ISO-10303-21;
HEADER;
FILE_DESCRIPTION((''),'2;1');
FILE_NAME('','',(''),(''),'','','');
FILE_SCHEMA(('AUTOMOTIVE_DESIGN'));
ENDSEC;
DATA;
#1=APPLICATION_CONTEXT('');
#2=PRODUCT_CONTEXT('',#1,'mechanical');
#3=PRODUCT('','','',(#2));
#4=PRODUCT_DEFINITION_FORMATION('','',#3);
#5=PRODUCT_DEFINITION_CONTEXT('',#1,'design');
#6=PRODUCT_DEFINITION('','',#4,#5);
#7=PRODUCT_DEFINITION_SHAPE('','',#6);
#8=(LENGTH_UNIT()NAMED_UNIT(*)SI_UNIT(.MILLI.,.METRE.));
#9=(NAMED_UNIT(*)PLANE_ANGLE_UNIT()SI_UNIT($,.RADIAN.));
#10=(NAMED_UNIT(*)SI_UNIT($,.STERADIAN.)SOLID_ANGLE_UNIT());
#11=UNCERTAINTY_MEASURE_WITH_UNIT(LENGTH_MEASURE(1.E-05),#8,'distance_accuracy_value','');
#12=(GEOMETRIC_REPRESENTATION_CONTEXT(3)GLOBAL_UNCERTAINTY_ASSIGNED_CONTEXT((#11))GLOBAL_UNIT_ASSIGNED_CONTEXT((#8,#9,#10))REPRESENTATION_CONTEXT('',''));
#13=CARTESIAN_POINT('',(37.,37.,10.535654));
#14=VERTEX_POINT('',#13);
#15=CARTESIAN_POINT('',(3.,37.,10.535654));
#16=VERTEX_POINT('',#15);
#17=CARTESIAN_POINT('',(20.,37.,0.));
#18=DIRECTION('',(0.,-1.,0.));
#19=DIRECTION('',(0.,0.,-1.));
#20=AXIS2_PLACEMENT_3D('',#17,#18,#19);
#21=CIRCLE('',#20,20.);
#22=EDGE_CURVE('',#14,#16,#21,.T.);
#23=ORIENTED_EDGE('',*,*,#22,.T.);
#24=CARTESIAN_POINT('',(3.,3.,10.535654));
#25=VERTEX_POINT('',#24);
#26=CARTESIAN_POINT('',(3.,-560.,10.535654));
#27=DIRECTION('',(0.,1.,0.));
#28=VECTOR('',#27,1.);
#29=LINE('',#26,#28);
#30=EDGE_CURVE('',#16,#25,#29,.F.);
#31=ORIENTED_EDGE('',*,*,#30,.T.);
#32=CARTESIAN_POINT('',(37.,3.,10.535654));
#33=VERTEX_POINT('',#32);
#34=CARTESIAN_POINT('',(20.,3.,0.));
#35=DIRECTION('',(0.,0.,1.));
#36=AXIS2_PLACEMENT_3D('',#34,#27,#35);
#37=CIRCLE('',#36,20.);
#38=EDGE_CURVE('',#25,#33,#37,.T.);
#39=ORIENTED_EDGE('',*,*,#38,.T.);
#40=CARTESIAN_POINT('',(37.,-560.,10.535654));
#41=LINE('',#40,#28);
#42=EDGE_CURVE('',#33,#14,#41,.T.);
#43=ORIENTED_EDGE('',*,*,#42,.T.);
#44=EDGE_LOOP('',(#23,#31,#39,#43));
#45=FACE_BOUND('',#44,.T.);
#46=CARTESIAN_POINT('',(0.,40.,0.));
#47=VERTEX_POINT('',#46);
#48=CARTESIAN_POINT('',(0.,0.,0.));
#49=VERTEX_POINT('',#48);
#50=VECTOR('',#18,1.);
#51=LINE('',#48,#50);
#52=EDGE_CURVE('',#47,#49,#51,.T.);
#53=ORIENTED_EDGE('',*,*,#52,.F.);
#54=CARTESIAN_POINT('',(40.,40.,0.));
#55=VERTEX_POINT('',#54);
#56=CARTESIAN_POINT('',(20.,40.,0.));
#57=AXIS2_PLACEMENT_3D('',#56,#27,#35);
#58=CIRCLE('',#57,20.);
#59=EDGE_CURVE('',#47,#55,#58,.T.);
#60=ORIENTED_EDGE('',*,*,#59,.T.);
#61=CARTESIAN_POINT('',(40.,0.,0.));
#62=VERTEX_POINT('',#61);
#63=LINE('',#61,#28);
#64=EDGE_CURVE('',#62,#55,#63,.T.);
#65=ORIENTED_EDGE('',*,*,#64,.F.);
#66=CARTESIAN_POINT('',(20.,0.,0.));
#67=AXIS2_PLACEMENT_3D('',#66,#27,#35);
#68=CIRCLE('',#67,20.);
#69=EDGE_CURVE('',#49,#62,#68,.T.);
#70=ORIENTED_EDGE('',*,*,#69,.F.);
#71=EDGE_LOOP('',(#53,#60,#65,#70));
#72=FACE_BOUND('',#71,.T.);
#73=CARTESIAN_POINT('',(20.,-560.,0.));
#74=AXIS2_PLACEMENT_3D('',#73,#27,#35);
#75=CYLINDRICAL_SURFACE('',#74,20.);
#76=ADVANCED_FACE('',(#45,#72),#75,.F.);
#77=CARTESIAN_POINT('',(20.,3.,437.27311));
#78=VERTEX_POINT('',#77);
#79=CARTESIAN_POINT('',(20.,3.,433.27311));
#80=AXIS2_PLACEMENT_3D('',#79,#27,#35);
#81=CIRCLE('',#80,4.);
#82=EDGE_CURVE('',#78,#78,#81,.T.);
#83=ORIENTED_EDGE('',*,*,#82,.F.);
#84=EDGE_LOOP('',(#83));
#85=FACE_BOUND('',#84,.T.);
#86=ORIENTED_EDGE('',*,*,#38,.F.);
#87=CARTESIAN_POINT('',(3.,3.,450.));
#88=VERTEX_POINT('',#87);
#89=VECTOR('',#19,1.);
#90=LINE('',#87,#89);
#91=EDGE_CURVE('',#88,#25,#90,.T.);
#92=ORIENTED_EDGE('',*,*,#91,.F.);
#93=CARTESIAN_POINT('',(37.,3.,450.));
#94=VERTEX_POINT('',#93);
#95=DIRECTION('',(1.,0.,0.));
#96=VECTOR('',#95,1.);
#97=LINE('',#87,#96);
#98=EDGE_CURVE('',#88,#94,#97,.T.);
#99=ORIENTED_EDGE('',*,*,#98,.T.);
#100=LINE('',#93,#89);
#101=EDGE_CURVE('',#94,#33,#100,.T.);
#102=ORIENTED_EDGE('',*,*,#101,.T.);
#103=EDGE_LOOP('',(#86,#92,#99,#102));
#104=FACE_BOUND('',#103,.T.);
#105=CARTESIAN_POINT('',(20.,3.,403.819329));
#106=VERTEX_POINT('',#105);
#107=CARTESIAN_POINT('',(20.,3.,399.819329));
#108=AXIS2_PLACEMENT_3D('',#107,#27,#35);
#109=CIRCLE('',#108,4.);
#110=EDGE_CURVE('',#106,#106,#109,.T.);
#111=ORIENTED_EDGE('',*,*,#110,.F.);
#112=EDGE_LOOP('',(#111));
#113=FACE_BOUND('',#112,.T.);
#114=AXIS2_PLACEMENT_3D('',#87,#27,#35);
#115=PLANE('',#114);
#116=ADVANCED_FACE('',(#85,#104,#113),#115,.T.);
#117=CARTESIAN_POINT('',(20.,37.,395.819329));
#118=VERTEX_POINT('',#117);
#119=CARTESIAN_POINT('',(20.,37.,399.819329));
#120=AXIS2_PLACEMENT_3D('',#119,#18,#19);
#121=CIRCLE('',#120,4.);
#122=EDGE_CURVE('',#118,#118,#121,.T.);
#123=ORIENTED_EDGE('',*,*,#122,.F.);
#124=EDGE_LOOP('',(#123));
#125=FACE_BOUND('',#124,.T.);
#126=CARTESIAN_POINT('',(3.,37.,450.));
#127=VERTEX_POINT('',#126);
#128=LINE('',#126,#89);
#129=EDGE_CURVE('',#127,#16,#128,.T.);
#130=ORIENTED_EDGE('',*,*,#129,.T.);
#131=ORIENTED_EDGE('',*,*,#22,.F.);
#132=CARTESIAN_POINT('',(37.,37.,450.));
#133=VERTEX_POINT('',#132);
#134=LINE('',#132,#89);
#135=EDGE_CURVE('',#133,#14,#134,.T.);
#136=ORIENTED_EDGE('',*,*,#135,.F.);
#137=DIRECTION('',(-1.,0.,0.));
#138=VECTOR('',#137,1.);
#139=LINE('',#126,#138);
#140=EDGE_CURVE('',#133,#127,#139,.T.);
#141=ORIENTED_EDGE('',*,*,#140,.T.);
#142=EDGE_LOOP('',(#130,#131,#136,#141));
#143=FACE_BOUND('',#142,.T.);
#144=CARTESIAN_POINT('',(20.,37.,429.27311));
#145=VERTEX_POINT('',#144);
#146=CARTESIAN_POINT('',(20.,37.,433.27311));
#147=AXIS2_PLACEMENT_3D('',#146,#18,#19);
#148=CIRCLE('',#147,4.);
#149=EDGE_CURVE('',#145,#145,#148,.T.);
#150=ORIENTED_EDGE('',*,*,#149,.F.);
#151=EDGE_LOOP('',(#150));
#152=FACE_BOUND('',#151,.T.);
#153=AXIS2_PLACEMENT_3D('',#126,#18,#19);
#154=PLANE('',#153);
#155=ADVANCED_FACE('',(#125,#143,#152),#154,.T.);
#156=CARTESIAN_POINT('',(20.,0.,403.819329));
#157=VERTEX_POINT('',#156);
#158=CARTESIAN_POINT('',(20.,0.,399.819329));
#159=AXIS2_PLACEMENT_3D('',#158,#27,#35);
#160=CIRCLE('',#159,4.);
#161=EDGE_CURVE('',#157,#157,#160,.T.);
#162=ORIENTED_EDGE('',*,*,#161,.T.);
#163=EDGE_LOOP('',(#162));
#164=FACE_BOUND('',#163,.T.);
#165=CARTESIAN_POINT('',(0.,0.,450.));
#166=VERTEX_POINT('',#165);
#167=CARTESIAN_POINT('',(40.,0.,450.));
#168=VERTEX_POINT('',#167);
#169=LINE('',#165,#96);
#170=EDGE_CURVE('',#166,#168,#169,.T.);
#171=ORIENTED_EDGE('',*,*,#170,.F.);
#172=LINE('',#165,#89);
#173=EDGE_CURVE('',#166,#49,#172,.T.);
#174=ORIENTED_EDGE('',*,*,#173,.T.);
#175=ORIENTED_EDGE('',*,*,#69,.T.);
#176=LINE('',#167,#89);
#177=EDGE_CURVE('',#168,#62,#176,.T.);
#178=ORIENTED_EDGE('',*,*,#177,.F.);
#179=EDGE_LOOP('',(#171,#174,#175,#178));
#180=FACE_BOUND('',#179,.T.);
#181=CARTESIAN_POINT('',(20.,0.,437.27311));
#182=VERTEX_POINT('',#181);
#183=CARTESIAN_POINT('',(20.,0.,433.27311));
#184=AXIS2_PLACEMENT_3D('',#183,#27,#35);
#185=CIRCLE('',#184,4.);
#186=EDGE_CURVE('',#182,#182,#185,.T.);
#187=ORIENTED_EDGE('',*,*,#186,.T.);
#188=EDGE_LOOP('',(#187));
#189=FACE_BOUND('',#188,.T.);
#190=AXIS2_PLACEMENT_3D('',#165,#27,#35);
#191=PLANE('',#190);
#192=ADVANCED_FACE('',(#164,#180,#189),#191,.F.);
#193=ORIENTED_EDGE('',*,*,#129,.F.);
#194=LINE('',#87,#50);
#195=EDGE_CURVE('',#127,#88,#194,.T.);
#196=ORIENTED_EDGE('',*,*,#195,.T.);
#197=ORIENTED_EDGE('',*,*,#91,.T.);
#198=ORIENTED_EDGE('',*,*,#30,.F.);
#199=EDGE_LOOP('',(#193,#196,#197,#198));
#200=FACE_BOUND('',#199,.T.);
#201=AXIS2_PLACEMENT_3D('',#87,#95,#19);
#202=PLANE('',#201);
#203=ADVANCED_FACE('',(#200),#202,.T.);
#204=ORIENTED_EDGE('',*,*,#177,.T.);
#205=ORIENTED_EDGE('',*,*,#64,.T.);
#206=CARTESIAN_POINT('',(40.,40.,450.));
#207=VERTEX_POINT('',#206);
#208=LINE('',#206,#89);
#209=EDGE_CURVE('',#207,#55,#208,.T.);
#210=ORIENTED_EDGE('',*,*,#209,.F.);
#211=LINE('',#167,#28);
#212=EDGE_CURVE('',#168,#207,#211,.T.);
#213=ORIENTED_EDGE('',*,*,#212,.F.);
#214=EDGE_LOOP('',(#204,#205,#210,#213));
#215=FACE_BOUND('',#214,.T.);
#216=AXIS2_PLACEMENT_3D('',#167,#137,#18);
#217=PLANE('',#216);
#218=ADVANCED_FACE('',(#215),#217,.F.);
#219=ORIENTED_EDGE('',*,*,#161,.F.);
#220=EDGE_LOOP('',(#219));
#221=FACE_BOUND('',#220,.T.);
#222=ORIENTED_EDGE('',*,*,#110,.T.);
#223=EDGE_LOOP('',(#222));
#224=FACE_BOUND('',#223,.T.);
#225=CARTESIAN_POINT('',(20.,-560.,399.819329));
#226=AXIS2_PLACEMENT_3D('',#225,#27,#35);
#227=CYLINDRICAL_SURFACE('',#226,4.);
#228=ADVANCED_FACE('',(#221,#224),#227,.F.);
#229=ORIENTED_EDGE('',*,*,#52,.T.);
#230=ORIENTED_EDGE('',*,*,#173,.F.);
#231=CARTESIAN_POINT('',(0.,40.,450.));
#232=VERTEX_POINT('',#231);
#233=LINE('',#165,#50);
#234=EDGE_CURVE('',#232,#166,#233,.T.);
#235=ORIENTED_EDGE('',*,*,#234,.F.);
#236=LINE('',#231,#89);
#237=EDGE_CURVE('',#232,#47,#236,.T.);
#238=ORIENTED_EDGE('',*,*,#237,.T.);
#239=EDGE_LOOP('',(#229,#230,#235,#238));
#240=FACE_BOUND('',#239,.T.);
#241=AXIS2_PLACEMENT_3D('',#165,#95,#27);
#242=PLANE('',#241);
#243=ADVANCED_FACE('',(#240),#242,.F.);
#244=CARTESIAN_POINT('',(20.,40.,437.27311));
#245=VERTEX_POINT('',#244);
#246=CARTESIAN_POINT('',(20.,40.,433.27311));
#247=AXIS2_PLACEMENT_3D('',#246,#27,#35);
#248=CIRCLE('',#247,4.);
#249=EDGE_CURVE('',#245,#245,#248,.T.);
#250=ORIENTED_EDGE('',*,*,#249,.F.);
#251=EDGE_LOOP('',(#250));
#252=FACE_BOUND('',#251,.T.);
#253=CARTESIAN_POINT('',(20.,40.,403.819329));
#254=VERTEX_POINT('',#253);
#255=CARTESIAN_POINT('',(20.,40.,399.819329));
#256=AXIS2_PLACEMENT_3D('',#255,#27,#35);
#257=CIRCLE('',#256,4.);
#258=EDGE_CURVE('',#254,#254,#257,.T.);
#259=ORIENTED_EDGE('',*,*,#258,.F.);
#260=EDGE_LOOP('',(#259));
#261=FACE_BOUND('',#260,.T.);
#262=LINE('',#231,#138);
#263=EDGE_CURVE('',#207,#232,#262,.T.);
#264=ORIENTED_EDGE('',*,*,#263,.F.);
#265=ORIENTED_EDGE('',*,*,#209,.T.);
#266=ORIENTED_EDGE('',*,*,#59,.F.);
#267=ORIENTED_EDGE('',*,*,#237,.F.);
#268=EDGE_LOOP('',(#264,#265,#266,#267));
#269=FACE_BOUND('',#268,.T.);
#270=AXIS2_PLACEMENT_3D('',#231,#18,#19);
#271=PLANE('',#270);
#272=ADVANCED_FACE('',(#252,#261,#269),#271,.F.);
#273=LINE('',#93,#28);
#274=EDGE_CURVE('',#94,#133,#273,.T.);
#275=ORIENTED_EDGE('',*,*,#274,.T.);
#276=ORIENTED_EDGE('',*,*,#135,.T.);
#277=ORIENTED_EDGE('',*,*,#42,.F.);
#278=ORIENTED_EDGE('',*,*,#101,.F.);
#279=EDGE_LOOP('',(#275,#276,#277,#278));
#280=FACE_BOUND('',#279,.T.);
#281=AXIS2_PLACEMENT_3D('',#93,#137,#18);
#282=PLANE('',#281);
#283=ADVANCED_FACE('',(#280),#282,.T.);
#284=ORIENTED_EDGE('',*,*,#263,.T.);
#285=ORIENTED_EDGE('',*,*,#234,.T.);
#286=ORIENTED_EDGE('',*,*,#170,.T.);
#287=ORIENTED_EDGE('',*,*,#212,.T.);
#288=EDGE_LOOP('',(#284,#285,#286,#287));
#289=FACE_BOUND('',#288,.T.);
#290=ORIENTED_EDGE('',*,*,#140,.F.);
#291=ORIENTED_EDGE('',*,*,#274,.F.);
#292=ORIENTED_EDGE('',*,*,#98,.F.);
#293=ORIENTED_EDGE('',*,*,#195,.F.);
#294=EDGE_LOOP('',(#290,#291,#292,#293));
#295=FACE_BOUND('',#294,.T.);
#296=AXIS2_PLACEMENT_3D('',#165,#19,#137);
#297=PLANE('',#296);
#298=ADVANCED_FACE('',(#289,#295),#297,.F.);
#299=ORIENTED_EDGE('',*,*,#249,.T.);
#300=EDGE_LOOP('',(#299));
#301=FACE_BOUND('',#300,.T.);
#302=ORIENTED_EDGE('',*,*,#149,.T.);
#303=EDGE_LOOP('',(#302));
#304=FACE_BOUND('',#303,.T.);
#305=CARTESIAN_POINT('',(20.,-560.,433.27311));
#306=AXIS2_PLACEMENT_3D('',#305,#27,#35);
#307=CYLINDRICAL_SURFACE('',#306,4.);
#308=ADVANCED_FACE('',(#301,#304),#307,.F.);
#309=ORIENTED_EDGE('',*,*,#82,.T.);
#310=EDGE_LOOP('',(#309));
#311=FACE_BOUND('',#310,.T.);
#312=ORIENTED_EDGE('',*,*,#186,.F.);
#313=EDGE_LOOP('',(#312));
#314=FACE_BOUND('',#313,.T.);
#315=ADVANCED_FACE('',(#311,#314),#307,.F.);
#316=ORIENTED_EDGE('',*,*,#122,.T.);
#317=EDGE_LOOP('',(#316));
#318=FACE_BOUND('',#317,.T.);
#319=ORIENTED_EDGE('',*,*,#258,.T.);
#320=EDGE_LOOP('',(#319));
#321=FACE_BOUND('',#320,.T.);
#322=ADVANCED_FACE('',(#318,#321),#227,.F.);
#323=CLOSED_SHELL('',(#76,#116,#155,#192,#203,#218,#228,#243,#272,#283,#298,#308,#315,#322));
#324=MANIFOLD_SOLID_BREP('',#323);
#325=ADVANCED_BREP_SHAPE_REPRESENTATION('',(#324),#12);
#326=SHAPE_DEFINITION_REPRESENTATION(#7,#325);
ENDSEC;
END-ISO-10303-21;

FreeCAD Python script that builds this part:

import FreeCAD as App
import Part
import Sketcher


def add_polygon(sketch, points):
    """Adds a closed chain of lines whose ends are joined by coincident constraints."""
    first, n = sketch.GeometryCount, len(points)
    for a, b in zip(points, points[1:] + points[:1]):
        sketch.addGeometry(Part.LineSegment(App.Vector(*a, 0), App.Vector(*b, 0)), False)
    for i in range(n):
        sketch.addConstraint(Sketcher.Constraint("Coincident", first + i, 2, first + (i + 1) % n, 1))

doc = App.newDocument("Part")
body = doc.addObject("PartDesign::Body", "Body")

# Sketch on XY plane
sketch1 = body.newObject("Sketcher::SketchObject", "Sketch")
sketch1.AttachmentSupport = (doc.getObject("XY_Plane"), [""])
sketch1.MapMode = "FlatFace"
add_polygon(sketch1, [(0, 40), (0, 0), (40, 0), (40, 40)])  # lines 0-3
add_polygon(sketch1, [(37, 3), (3, 3), (3, 37), (37, 37)])  # lines 4-7
sketch1.addConstraint([
    Sketcher.Constraint("Vertical", 0),
    Sketcher.Constraint("Horizontal", 1),
    Sketcher.Constraint("Vertical", 2),
    Sketcher.Constraint("Horizontal", 3),
    Sketcher.Constraint("Horizontal", 4),
    Sketcher.Constraint("Vertical", 5),
    Sketcher.Constraint("Horizontal", 6),
    Sketcher.Constraint("Vertical", 7),
    Sketcher.Constraint("Coincident", 0, 2, -1, 1),
    Sketcher.Constraint("Equal", 3, 0),
    Sketcher.Constraint("Equal", 6, 5),
    Sketcher.Constraint("DistanceX", 1, 1, 1, 2, 40.0),
    Sketcher.Constraint("DistanceX", 4, 2, 4, 1, 34.0),
    Sketcher.Constraint("DistanceX", -1, 1, 4, 2, 3.0),
    Sketcher.Constraint("DistanceY", -1, 1, 4, 2, 3.0),
])
pad1 = body.newObject("PartDesign::Pad", "Pad")
pad1.Profile = sketch1
pad1.Length = 450

# Sketch on XZ plane
sketch2 = body.newObject("Sketcher::SketchObject", "Sketch001")
sketch2.AttachmentSupport = (doc.getObject("XZ_Plane"), [""])
sketch2.MapMode = "FlatFace"
sketch2.AttachmentOffset = App.Placement(App.Vector(0, 0, -40), App.Rotation())
sketch2.addGeometry([
    Part.Circle(App.Vector(20, 399.8, 0), App.Vector(0, 0, 1), 4),
    Part.Circle(App.Vector(20, 433.3, 0), App.Vector(0, 0, 1), 4),
    Part.Circle(App.Vector(20, 0, 0), App.Vector(0, 0, 1), 20),
], False)
sketch2.addConstraint([
    Sketcher.Constraint("Equal", 0, 1),
    Sketcher.Constraint("PointOnObject", 2, 3, -1),
    Sketcher.Constraint("Vertical", 0, 3, 1, 3),
    Sketcher.Constraint("Vertical", 1, 3, 2, 3),
    Sketcher.Constraint("Diameter", 0, 8.0),
    Sketcher.Constraint("Diameter", 2, 40.0),
    Sketcher.Constraint("DistanceX", -1, 1, 0, 3, 20.0),
    Sketcher.Constraint("DistanceY", -1, 1, 0, 3, 399.819329),
    Sketcher.Constraint("DistanceY", -1, 1, 1, 3, 433.27311),
])
pocket1 = body.newObject("PartDesign::Pocket", "Pocket")
pocket1.Profile = sketch2
pocket1.Length = 600
pocket1.Reversed = True

doc.recompute()
